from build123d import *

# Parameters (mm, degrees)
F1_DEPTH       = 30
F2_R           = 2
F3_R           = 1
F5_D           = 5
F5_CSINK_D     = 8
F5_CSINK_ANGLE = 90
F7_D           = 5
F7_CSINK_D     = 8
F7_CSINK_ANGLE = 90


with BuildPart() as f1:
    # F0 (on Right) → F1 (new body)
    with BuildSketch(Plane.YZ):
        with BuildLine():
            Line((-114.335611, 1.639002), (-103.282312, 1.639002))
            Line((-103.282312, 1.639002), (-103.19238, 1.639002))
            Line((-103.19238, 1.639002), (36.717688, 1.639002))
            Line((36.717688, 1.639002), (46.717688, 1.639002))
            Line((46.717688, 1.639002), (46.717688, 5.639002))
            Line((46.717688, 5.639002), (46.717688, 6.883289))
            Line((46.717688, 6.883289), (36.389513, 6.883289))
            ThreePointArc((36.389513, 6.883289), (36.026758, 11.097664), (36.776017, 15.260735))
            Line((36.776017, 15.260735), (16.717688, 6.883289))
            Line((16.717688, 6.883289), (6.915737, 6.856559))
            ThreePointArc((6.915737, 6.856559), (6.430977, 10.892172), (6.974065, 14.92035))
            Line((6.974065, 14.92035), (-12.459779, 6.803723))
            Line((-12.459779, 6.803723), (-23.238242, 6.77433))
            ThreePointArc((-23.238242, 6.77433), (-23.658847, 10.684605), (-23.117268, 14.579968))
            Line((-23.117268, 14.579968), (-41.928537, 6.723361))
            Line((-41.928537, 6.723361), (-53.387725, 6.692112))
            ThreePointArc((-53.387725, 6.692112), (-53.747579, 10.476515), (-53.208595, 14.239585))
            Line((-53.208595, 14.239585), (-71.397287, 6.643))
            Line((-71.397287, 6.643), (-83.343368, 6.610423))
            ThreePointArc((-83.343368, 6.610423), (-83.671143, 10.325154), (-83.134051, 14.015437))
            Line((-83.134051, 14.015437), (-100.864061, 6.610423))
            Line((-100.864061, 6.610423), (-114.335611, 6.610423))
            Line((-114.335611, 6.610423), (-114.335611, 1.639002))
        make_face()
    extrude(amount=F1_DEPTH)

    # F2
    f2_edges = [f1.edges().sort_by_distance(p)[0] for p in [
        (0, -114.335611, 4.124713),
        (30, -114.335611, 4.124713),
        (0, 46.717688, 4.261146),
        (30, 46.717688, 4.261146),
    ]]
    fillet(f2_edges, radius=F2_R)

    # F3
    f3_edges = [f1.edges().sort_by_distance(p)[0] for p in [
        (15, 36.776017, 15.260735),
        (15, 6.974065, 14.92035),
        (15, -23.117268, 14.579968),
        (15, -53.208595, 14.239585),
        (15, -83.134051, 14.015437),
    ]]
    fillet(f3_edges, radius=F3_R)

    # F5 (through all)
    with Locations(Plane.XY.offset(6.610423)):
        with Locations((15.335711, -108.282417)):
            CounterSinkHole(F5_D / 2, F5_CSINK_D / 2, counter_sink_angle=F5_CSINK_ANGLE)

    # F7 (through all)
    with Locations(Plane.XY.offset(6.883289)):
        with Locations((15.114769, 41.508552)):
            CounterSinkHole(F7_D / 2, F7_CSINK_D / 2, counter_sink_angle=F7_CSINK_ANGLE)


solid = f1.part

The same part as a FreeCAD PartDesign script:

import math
import FreeCAD as App
import Part
import Sketcher
Q = App.Units.Quantity


def edges_at(feature, points):
    """Names of the edges that pass closest to the given points."""
    edges = feature.Shape.Edges
    near = lambda p: min(range(len(edges)), key=lambda i: edges[i].distToShape(Part.Vertex(*p))[0])
    return sorted({f"Edge{near(p) + 1}" for p in points})

doc = App.newDocument("Part")
body = doc.addObject("PartDesign::Body", "Body")

# Sketch on YZ plane
sketch1 = doc.addObject("Sketcher::SketchObject", "Sketch")
body.addObject(sketch1)
sketch1.AttachmentSupport = (doc.YZ_Plane, [""])
sketch1.MapMode = "FlatFace"
sketch1.addGeometry(Part.LineSegment(App.Vector(-114.335611, 1.639002, 0), App.Vector(46.717688, 1.639002, 0)), False)
sketch1.addGeometry(Part.LineSegment(App.Vector(46.717688, 1.639002, 0), App.Vector(46.717688, 6.883289, 0)), False)
sketch1.addGeometry(Part.LineSegment(App.Vector(46.717688, 6.883289, 0), App.Vector(36.389513, 6.883289, 0)), False)
sketch1.addGeometry(Part.ArcOfCircle(Part.Circle(App.Vector(52.082801, 10.356898, 0), App.Vector(0, 0, 1), 16.073122), math.radians(162.236092), math.radians(192.480828)), False)
sketch1.addGeometry(Part.LineSegment(App.Vector(36.776017, 15.260735, 0), App.Vector(16.717688, 6.883289, 0)), False)
sketch1.addGeometry(Part.LineSegment(App.Vector(16.717688, 6.883289, 0), App.Vector(6.915737, 6.856559, 0)), False)
sketch1.addGeometry(Part.ArcOfCircle(Part.Circle(App.Vector(22.503683, 10.775913, 0), App.Vector(0, 0, 1), 16.073127), math.radians(165.057542), math.radians(194.113595)), False)
sketch1.addGeometry(Part.LineSegment(App.Vector(6.974065, 14.92035, 0), App.Vector(-12.459779, 6.803723, 0)), False)
sketch1.addGeometry(Part.LineSegment(App.Vector(-12.459779, 6.803723, 0), App.Vector(-23.238242, 6.77433, 0)), False)
sketch1.addGeometry(Part.ArcOfCircle(Part.Circle(App.Vector(-7.587653, 10.435529, 0), App.Vector(0, 0, 1), 16.073124), math.radians(165.057533), math.radians(193.166637)), False)
sketch1.addGeometry(Part.LineSegment(App.Vector(-23.117268, 14.579968, 0), App.Vector(-41.928537, 6.723361, 0)), False)
sketch1.addGeometry(Part.LineSegment(App.Vector(-41.928537, 6.723361, 0), App.Vector(-53.387725, 6.692112, 0)), False)
sketch1.addGeometry(Part.ArcOfCircle(Part.Circle(App.Vector(-37.678983, 10.095147, 0), App.Vector(0, 0, 1), 16.073121), math.radians(165.057531), math.radians(192.223289)), False)
sketch1.addGeometry(Part.LineSegment(App.Vector(-53.208595, 14.239585, 0), App.Vector(-71.397287, 6.643, 0)), False)
sketch1.addGeometry(Part.LineSegment(App.Vector(-71.397287, 6.643, 0), App.Vector(-83.343368, 6.610423, 0)), False)
sketch1.addGeometry(Part.ArcOfCircle(Part.Circle(App.Vector(-67.604446, 9.870997, 0), App.Vector(0, 0, 1), 16.073115), math.radians(165.057521), math.radians(191.70419)), False)
sketch1.addGeometry(Part.LineSegment(App.Vector(-83.134051, 14.015437, 0), App.Vector(-100.864061, 6.610423, 0)), False)
sketch1.addGeometry(Part.LineSegment(App.Vector(-100.864061, 6.610423, 0), App.Vector(-114.335611, 6.610423, 0)), False)
sketch1.addGeometry(Part.LineSegment(App.Vector(-114.335611, 6.610423, 0), App.Vector(-114.335611, 1.639002, 0)), False)
sketch1.addConstraint(Sketcher.Constraint("Coincident", 0, 2, 1, 1))
sketch1.addConstraint(Sketcher.Constraint("Coincident", 1, 2, 2, 1))
sketch1.addConstraint(Sketcher.Constraint("Coincident", 2, 2, 3, 2))
sketch1.addConstraint(Sketcher.Constraint("Coincident", 3, 1, 4, 1))
sketch1.addConstraint(Sketcher.Constraint("Coincident", 4, 2, 5, 1))
sketch1.addConstraint(Sketcher.Constraint("Coincident", 5, 2, 6, 2))
sketch1.addConstraint(Sketcher.Constraint("Coincident", 6, 1, 7, 1))
sketch1.addConstraint(Sketcher.Constraint("Coincident", 7, 2, 8, 1))
sketch1.addConstraint(Sketcher.Constraint("Coincident", 8, 2, 9, 2))
sketch1.addConstraint(Sketcher.Constraint("Coincident", 9, 1, 10, 1))
sketch1.addConstraint(Sketcher.Constraint("Coincident", 10, 2, 11, 1))
sketch1.addConstraint(Sketcher.Constraint("Coincident", 11, 2, 12, 2))
sketch1.addConstraint(Sketcher.Constraint("Coincident", 12, 1, 13, 1))
sketch1.addConstraint(Sketcher.Constraint("Coincident", 13, 2, 14, 1))
sketch1.addConstraint(Sketcher.Constraint("Coincident", 14, 2, 15, 2))
sketch1.addConstraint(Sketcher.Constraint("Coincident", 15, 1, 16, 1))
sketch1.addConstraint(Sketcher.Constraint("Coincident", 16, 2, 17, 1))
sketch1.addConstraint(Sketcher.Constraint("Coincident", 17, 2, 18, 1))
sketch1.addConstraint(Sketcher.Constraint("Coincident", 18, 2, 0, 1))
sketch1.addConstraint(Sketcher.Constraint("Horizontal", 0))
sketch1.addConstraint(Sketcher.Constraint("Vertical", 1))
sketch1.addConstraint(Sketcher.Constraint("Horizontal", 2))
sketch1.addConstraint(Sketcher.Constraint("Horizontal", 17))
sketch1.addConstraint(Sketcher.Constraint("Vertical", 18))
sketch1.addConstraint(Sketcher.Constraint("DistanceX", 4, 2, 1, 2, Q("30 mm")))
sketch1.addConstraint(Sketcher.Constraint("Radius", 3, Q("16.073122 mm")))
sketch1.addConstraint(Sketcher.Constraint("Radius", 12, Q("16.073121 mm")))
sketch1.addConstraint(Sketcher.Constraint("DistanceX", 0, 1, 0, 2, Q("161.053299 mm")))
sketch1.addConstraint(Sketcher.Constraint("DistanceY", -1, 1, 13, 2, Q("6.643 mm")))
sketch1.addConstraint(Sketcher.Constraint("Radius", 6, Q("16.073127 mm")))
sketch1.addConstraint(Sketcher.Constraint("Radius", 9, Q("16.073124 mm")))
sketch1.addConstraint(Sketcher.Constraint("Radius", 15, Q("16.073115 mm")))
sketch1.addConstraint(Sketcher.Constraint("DistanceX", 17, 2, 17, 1, Q("13.47155 mm")))
sketch1.addConstraint(Sketcher.Constraint("DistanceY", 18, 2, 18, 1, Q("4.971421 mm")))
sketch1.addConstraint(Sketcher.Constraint("DistanceX", -1, 1, 3, 3, Q("52.082801 mm")))
sketch1.addConstraint(Sketcher.Constraint("DistanceY", -1, 1, 3, 3, Q("10.356898 mm")))
sketch1.addConstraint(Sketcher.Constraint("DistanceY", 15, 3, 3, 3, Q("0.485901 mm")))
sketch1.addConstraint(Sketcher.Constraint("DistanceY", 8, 2, 9, 3, Q("3.661199 mm")))
sketch1.addConstraint(Sketcher.Constraint("Distance", 7, Q("21.06072 mm")))
sketch1.addConstraint(Sketcher.Constraint("Distance", 11, Q("11.459231 mm")))
sketch1.addConstraint(Sketcher.Constraint("DistanceX", 2, 2, 2, 1, Q("10.328175 mm")))
sketch1.addConstraint(Sketcher.Constraint("DistanceY", 1, 1, 1, 2, Q("5.244287 mm")))
sketch1.addConstraint(Sketcher.Constraint("DistanceY", -1, 1, 9, 3, Q("10.435529 mm")))
sketch1.addConstraint(Sketcher.Constraint("DistanceX", -1, 1, 0, 2, Q("46.717688 mm")))
sketch1.addConstraint(Sketcher.Constraint("DistanceY", -1, 1, 4, 2, Q("6.883289 mm")))
sketch1.addConstraint(Sketcher.Constraint("DistanceY", -1, 1, 5, 2, Q("6.856559 mm")))
sketch1.addConstraint(Sketcher.Constraint("DistanceY", -1, 1, 6, 1, Q("14.92035 mm")))
sketch1.addConstraint(Sketcher.Constraint("DistanceX", 7, 2, -1, 1, Q("12.459779 mm")))
sketch1.addConstraint(Sketcher.Constraint("DistanceX", 8, 2, -1, 1, Q("23.238242 mm")))
sketch1.addConstraint(Sketcher.Constraint("DistanceY", -1, 1, 10, 2, Q("6.723361 mm")))
sketch1.addConstraint(Sketcher.Constraint("DistanceX", 14, 2, -1, 1, Q("83.343368 mm")))
sketch1.addConstraint(Sketcher.Constraint("DistanceX", 15, 1, -1, 1, Q("83.134051 mm")))
sketch1.addConstraint(Sketcher.Constraint("DistanceX", 12, 3, 9, 3, Q("30.09133 mm")))
sketch1.addConstraint(Sketcher.Constraint("DistanceY", 12, 3, 3, 3, Q("0.261752 mm")))
sketch1.addConstraint(Sketcher.Constraint("DistanceX", 15, 3, 6, 3, Q("90.108129 mm")))
sketch1.addConstraint(Sketcher.Constraint("DistanceY", 0, 2, 6, 3, Q("9.136911 mm")))
sketch1.addConstraint(Sketcher.Constraint("DistanceX", 6, 3, 2, 2, Q("13.88583 mm")))
sketch1.addConstraint(Sketcher.Constraint("DistanceX", 3, 1, 1, 2, Q("9.941671 mm")))
sketch1.addConstraint(Sketcher.Constraint("DistanceX", 9, 1, 7, 2, Q("10.657489 mm")))
sketch1.addConstraint(Sketcher.Constraint("DistanceX", 10, 2, 9, 1, Q("18.811269 mm")))
sketch1.addConstraint(Sketcher.Constraint("DistanceX", 11, 2, 12, 1, Q("0.17913 mm")))
sketch1.addConstraint(Sketcher.Constraint("DistanceX", 13, 2, 15, 3, Q("3.792841 mm")))
pad1 = doc.addObject("PartDesign::Pad", "Pad")
body.addObject(pad1)
pad1.Profile = sketch1
pad1.Length = 30
doc.recompute()

fillet = doc.addObject("PartDesign::Fillet", "Fillet")
body.addObject(fillet)
fillet.Base = (pad1, edges_at(pad1, [
    (0, -114.336, 4.125),
    (30, -114.336, 4.125),
    (0, 46.718, 4.261),
    (30, 46.718, 4.261),
]))
fillet.Radius = 2
doc.recompute()

fillet2 = doc.addObject("PartDesign::Fillet", "Fillet001")
body.addObject(fillet2)
fillet2.Base = (fillet, edges_at(fillet, [
    (15, 36.776, 15.261),
    (15, 6.974, 14.92),
    (15, -23.117, 14.58),
    (15, -53.209, 14.24),
    (15, -83.134, 14.015),
]))
fillet2.Radius = 1

# Sketch on XY plane
sketch2 = doc.addObject("Sketcher::SketchObject", "Sketch001")
body.addObject(sketch2)
sketch2.AttachmentSupport = (doc.XY_Plane, [""])
sketch2.MapMode = "FlatFace"
sketch2.AttachmentOffset = App.Placement(App.Vector(0, 0, 6.610423), App.Rotation())
sketch2.addGeometry(Part.Circle(App.Vector(15.3, -108.3, 0), App.Vector(0, 0, 1), 2.5), False)
sketch2.addConstraint(Sketcher.Constraint("Diameter", 0, Q("5 mm")))
sketch2.addConstraint(Sketcher.Constraint("DistanceX", -1, 1, 0, 3, Q("15.335711 mm")))
sketch2.addConstraint(Sketcher.Constraint("DistanceY", 0, 3, -1, 1, Q("108.282417 mm")))
doc.recompute()
hole = doc.addObject("PartDesign::Hole", "Hole")
body.addObject(hole)
hole.Profile = sketch2
hole.ThreadType = "None"
hole.Diameter = 5
hole.DepthType = "ThroughAll"
hole.HoleCutType = "Countersink"
hole.HoleCutDiameter = 8
hole.HoleCutCountersinkAngle = 90

# Sketch on XY plane
sketch3 = doc.addObject("Sketcher::SketchObject", "Sketch002")
body.addObject(sketch3)
sketch3.AttachmentSupport = (doc.XY_Plane, [""])
sketch3.MapMode = "FlatFace"
sketch3.AttachmentOffset = App.Placement(App.Vector(0, 0, 6.883289), App.Rotation())
sketch3.addGeometry(Part.Circle(App.Vector(15.1, 41.5, 0), App.Vector(0, 0, 1), 2.5), False)
sketch3.addConstraint(Sketcher.Constraint("Diameter", 0, Q("5 mm")))
sketch3.addConstraint(Sketcher.Constraint("DistanceX", -1, 1, 0, 3, Q("15.114769 mm")))
sketch3.addConstraint(Sketcher.Constraint("DistanceY", -1, 1, 0, 3, Q("41.508552 mm")))
doc.recompute()
hole2 = doc.addObject("PartDesign::Hole", "Hole001")
body.addObject(hole2)
hole2.Profile = sketch3
hole2.ThreadType = "None"
hole2.Diameter = 5
hole2.DepthType = "ThroughAll"
hole2.HoleCutType = "Countersink"
hole2.HoleCutDiameter = 8
hole2.HoleCutCountersinkAngle = 90

doc.recompute()
